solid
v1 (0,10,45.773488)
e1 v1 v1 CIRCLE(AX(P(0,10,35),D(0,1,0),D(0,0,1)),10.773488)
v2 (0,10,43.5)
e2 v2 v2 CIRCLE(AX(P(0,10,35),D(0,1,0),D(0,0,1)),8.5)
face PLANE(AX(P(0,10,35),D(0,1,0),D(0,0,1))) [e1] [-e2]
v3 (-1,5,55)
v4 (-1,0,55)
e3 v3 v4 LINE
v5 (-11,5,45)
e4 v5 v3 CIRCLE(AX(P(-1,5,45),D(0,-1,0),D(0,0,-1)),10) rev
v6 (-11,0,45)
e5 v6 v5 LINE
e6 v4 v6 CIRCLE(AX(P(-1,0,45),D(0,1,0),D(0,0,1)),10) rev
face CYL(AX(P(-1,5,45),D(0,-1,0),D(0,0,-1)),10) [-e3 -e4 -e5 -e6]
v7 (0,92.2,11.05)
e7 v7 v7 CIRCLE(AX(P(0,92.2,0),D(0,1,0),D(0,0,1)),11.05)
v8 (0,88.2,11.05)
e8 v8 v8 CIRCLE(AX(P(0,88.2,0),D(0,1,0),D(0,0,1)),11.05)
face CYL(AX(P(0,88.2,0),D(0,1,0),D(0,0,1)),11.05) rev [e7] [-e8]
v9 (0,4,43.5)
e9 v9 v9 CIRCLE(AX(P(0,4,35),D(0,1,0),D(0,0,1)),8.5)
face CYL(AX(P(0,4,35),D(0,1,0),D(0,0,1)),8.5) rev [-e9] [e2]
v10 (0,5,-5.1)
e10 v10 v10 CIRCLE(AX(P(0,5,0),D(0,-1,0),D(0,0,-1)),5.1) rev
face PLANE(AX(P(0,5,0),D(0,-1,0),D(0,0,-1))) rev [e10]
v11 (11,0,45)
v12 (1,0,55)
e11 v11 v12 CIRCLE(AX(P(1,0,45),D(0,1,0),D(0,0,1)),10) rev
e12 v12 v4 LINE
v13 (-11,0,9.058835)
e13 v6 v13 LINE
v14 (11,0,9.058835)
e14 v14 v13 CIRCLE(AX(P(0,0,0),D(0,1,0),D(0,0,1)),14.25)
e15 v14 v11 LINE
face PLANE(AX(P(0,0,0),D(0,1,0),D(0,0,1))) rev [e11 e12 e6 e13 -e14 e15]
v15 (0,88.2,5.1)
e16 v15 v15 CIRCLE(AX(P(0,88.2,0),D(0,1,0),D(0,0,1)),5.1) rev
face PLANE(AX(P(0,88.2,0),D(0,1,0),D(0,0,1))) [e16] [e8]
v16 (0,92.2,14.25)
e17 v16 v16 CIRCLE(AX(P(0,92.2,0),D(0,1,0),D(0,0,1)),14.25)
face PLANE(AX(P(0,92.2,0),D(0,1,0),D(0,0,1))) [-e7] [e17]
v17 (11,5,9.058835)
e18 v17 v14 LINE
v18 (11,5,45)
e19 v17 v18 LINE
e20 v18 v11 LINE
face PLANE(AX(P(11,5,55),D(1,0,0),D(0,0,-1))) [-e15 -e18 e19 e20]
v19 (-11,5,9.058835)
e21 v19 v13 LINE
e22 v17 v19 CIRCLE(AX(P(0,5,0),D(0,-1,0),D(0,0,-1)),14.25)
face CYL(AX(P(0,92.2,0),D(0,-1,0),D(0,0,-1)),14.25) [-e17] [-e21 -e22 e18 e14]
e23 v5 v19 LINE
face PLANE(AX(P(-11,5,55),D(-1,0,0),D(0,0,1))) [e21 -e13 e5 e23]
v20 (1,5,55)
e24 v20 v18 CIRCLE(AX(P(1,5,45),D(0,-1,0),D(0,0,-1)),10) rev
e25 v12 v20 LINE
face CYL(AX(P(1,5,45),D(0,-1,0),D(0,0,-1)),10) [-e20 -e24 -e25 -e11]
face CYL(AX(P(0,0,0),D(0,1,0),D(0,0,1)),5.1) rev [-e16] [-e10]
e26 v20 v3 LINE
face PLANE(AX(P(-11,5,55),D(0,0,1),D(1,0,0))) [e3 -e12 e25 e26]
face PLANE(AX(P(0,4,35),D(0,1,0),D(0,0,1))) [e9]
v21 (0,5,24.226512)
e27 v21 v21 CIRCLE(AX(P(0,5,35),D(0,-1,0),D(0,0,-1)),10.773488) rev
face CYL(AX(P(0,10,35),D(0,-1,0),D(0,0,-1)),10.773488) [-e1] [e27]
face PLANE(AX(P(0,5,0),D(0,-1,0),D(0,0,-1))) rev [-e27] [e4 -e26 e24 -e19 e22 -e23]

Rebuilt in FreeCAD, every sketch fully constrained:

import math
import FreeCAD as App
import Part
import Sketcher


def edges_at(feature, points):
    """Names of the edges that pass closest to the given points."""
    edges = feature.Shape.Edges
    near = lambda p: min(range(len(edges)), key=lambda i: edges[i].distToShape(Part.Vertex(*p))[0])
    return sorted({f"Edge{near(p) + 1}" for p in points})

doc = App.newDocument("Part")
params = doc.addObject("Spreadsheet::Sheet", "Params")
for row, (alias, value) in enumerate([
    ("sketch1_diameter", "28.5 mm"),
    ("pad1_length", "92.2 mm"),
    ("sketch2_diameter", "10.2 mm"),
    ("pocket1_length", "92.2 mm"),
    ("sketch3_diameter", "22.1 mm"),
    ("pocket2_length", "4 mm"),
    ("sketch4_width", "22 mm"),
    ("sketch4_radius", "14.25 mm"),
    ("pad2_length", "5 mm"),
    ("sketch5_diameter", "17 mm"),
    ("pocket3_length", "1 mm"),
    ("fillet_radius", "10 mm"),
    ("sketch6_diameter", "17 mm"),
    ("pad3_length", "5 mm"),
], start=1):
    params.set(f"A{row}", alias)
    params.set(f"B{row}", "=" + value)
    params.setAlias(f"B{row}", alias)

body = doc.addObject("PartDesign::Body", "Body")

# Sketch on XZ plane
sketch1 = doc.addObject("Sketcher::SketchObject", "Sketch")
body.addObject(sketch1)
sketch1.AttachmentSupport = (doc.XZ_Plane, [""])
sketch1.MapMode = "FlatFace"
sketch1.addGeometry(Part.Circle(App.Vector(0, 0, 0), App.Vector(0, 0, 1), 14), False)
sketch1.addConstraint(Sketcher.Constraint("Coincident", 0, 3, -1, 1))
sketch1.addConstraint(Sketcher.Constraint("Diameter", 0, 28.5))
sketch1.setExpression("Constraints[1]", "Params.sketch1_diameter")
pad1 = doc.addObject("PartDesign::Pad", "Pad")
body.addObject(pad1)
pad1.Profile = sketch1
pad1.setExpression("Length", "Params.pad1_length")
pad1.Reversed = True

# Sketch on XZ plane
sketch2 = doc.addObject("Sketcher::SketchObject", "Sketch001")
body.addObject(sketch2)
sketch2.AttachmentSupport = (doc.XZ_Plane, [""])
sketch2.MapMode = "FlatFace"
sketch2.AttachmentOffset = App.Placement(App.Vector(0, 0, -92.2), App.Rotation())
sketch2.addGeometry(Part.Circle(App.Vector(0, 0, 0), App.Vector(0, 0, 1), 5), False)
sketch2.addConstraint(Sketcher.Constraint("Coincident", 0, 3, -1, 1))
sketch2.addConstraint(Sketcher.Constraint("Diameter", 0, 10.2))
sketch2.setExpression("Constraints[1]", "Params.sketch2_diameter")
pocket1 = doc.addObject("PartDesign::Pocket", "Pocket")
body.addObject(pocket1)
pocket1.Profile = sketch2
pocket1.setExpression("Length", "Params.pocket1_length")
pocket1.Reversed = True

# Sketch on XZ plane
sketch3 = doc.addObject("Sketcher::SketchObject", "Sketch002")
body.addObject(sketch3)
sketch3.AttachmentSupport = (doc.XZ_Plane, [""])
sketch3.MapMode = "FlatFace"
sketch3.AttachmentOffset = App.Placement(App.Vector(0, 0, -92.2), App.Rotation())
sketch3.addGeometry(Part.Circle(App.Vector(0, 0, 0), App.Vector(0, 0, 1), 11), False)
sketch3.addConstraint(Sketcher.Constraint("Coincident", 0, 3, -1, 1))
sketch3.addConstraint(Sketcher.Constraint("Diameter", 0, 22.1))
sketch3.setExpression("Constraints[1]", "Params.sketch3_diameter")
pocket2 = doc.addObject("PartDesign::Pocket", "Pocket001")
body.addObject(pocket2)
pocket2.Profile = sketch3
pocket2.setExpression("Length", "Params.pocket2_length")
pocket2.Reversed = True

# Sketch on XZ plane
sketch4 = doc.addObject("Sketcher::SketchObject", "Sketch003")
body.addObject(sketch4)
sketch4.AttachmentSupport = (doc.XZ_Plane, [""])
sketch4.MapMode = "FlatFace"
sketch4.addGeometry(Part.LineSegment(App.Vector(11, 55, 0), App.Vector(-11, 55, 0)), False)
sketch4.addGeometry(Part.LineSegment(App.Vector(-11, 55, 0), App.Vector(-11, 9, 0)), False)
sketch4.addGeometry(Part.ArcOfCircle(Part.Circle(App.Vector(0, 0, 0), App.Vector(0, 0, 1), 14), math.radians(141), math.radians(399)), False)
sketch4.addGeometry(Part.LineSegment(App.Vector(11, 9, 0), App.Vector(11, 55, 0)), False)
sketch4.addConstraint(Sketcher.Constraint("Coincident", 0, 2, 1, 1))
sketch4.addConstraint(Sketcher.Constraint("Coincident", 1, 2, 2, 1))
sketch4.addConstraint(Sketcher.Constraint("Coincident", 2, 2, 3, 1))
sketch4.addConstraint(Sketcher.Constraint("Coincident", 3, 2, 0, 1))
sketch4.addConstraint(Sketcher.Constraint("Horizontal", 0))
sketch4.addConstraint(Sketcher.Constraint("Vertical", 1))
sketch4.addConstraint(Sketcher.Constraint("Vertical", 3))
sketch4.addConstraint(Sketcher.Constraint("Coincident", 2, 3, -1, 1))
sketch4.addConstraint(Sketcher.Constraint("Horizontal", 1, 2, 2, 2))
sketch4.addConstraint(Sketcher.Constraint("DistanceX", 0, 2, 0, 1, 22.0))
sketch4.addConstraint(Sketcher.Constraint("Radius", 2, 14.25))
sketch4.addConstraint(Sketcher.Constraint("DistanceY", -1, 1, 0, 2, 55.0))
sketch4.setExpression("Constraints[9]", "Params.sketch4_width")
sketch4.setExpression("Constraints[10]", "Params.sketch4_radius")
pad2 = doc.addObject("PartDesign::Pad", "Pad001")
body.addObject(pad2)
pad2.Profile = sketch4
pad2.setExpression("Length", "Params.pad2_length")
pad2.Reversed = True

# Sketch on XZ plane
sketch5 = doc.addObject("Sketcher::SketchObject", "Sketch004")
body.addObject(sketch5)
sketch5.AttachmentSupport = (doc.XZ_Plane, [""])
sketch5.MapMode = "FlatFace"
sketch5.AttachmentOffset = App.Placement(App.Vector(0, 0, -5), App.Rotation())
sketch5.addGeometry(Part.Circle(App.Vector(0, 35, 0), App.Vector(0, 0, 1), 8), False)
sketch5.addConstraint(Sketcher.Constraint("PointOnObject", 0, 3, -2))
sketch5.addConstraint(Sketcher.Constraint("Diameter", 0, 17.0))
sketch5.addConstraint(Sketcher.Constraint("DistanceY", -1, 1, 0, 3, 35.0))
sketch5.setExpression("Constraints[1]", "Params.sketch5_diameter")
pocket3 = doc.addObject("PartDesign::Pocket", "Pocket002")
body.addObject(pocket3)
pocket3.Profile = sketch5
pocket3.setExpression("Length", "Params.pocket3_length")
pocket3.Reversed = True
doc.recompute()

fillet = doc.addObject("PartDesign::Fillet", "Fillet")
body.addObject(fillet)
fillet.Base = (pocket3, edges_at(pocket3, [(-11, 2.5, 55), (11, 2.5, 55)]))
fillet.setExpression("Radius", "Params.fillet_radius")

# Sketch on XZ plane
sketch6 = doc.addObject("Sketcher::SketchObject", "Sketch005")
body.addObject(sketch6)
sketch6.AttachmentSupport = (doc.XZ_Plane, [""])
sketch6.MapMode = "FlatFace"
sketch6.AttachmentOffset = App.Placement(App.Vector(0, 0, -10), App.Rotation())
sketch6.addGeometry(Part.Circle(App.Vector(0, 35, 0), App.Vector(0, 0, 1), 11), False)
sketch6.addGeometry(Part.Circle(App.Vector(0, 35, 0), App.Vector(0, 0, 1), 8), False)
sketch6.addConstraint(Sketcher.Constraint("Coincident", 1, 3, 0, 3))
sketch6.addConstraint(Sketcher.Constraint("PointOnObject", 0, 3, -2))
sketch6.addConstraint(Sketcher.Constraint("Diameter", 1, 17.0))
sketch6.addConstraint(Sketcher.Constraint("DistanceY", -1, 1, 0, 3, 35.0))
sketch6.addConstraint(Sketcher.Constraint("Diameter", 0, 21.546976))
sketch6.setExpression("Constraints[2]", "Params.sketch6_diameter")
pad3 = doc.addObject("PartDesign::Pad", "Pad002")
body.addObject(pad3)
pad3.Profile = sketch6
pad3.setExpression("Length", "Params.pad3_length")

doc.recompute()
